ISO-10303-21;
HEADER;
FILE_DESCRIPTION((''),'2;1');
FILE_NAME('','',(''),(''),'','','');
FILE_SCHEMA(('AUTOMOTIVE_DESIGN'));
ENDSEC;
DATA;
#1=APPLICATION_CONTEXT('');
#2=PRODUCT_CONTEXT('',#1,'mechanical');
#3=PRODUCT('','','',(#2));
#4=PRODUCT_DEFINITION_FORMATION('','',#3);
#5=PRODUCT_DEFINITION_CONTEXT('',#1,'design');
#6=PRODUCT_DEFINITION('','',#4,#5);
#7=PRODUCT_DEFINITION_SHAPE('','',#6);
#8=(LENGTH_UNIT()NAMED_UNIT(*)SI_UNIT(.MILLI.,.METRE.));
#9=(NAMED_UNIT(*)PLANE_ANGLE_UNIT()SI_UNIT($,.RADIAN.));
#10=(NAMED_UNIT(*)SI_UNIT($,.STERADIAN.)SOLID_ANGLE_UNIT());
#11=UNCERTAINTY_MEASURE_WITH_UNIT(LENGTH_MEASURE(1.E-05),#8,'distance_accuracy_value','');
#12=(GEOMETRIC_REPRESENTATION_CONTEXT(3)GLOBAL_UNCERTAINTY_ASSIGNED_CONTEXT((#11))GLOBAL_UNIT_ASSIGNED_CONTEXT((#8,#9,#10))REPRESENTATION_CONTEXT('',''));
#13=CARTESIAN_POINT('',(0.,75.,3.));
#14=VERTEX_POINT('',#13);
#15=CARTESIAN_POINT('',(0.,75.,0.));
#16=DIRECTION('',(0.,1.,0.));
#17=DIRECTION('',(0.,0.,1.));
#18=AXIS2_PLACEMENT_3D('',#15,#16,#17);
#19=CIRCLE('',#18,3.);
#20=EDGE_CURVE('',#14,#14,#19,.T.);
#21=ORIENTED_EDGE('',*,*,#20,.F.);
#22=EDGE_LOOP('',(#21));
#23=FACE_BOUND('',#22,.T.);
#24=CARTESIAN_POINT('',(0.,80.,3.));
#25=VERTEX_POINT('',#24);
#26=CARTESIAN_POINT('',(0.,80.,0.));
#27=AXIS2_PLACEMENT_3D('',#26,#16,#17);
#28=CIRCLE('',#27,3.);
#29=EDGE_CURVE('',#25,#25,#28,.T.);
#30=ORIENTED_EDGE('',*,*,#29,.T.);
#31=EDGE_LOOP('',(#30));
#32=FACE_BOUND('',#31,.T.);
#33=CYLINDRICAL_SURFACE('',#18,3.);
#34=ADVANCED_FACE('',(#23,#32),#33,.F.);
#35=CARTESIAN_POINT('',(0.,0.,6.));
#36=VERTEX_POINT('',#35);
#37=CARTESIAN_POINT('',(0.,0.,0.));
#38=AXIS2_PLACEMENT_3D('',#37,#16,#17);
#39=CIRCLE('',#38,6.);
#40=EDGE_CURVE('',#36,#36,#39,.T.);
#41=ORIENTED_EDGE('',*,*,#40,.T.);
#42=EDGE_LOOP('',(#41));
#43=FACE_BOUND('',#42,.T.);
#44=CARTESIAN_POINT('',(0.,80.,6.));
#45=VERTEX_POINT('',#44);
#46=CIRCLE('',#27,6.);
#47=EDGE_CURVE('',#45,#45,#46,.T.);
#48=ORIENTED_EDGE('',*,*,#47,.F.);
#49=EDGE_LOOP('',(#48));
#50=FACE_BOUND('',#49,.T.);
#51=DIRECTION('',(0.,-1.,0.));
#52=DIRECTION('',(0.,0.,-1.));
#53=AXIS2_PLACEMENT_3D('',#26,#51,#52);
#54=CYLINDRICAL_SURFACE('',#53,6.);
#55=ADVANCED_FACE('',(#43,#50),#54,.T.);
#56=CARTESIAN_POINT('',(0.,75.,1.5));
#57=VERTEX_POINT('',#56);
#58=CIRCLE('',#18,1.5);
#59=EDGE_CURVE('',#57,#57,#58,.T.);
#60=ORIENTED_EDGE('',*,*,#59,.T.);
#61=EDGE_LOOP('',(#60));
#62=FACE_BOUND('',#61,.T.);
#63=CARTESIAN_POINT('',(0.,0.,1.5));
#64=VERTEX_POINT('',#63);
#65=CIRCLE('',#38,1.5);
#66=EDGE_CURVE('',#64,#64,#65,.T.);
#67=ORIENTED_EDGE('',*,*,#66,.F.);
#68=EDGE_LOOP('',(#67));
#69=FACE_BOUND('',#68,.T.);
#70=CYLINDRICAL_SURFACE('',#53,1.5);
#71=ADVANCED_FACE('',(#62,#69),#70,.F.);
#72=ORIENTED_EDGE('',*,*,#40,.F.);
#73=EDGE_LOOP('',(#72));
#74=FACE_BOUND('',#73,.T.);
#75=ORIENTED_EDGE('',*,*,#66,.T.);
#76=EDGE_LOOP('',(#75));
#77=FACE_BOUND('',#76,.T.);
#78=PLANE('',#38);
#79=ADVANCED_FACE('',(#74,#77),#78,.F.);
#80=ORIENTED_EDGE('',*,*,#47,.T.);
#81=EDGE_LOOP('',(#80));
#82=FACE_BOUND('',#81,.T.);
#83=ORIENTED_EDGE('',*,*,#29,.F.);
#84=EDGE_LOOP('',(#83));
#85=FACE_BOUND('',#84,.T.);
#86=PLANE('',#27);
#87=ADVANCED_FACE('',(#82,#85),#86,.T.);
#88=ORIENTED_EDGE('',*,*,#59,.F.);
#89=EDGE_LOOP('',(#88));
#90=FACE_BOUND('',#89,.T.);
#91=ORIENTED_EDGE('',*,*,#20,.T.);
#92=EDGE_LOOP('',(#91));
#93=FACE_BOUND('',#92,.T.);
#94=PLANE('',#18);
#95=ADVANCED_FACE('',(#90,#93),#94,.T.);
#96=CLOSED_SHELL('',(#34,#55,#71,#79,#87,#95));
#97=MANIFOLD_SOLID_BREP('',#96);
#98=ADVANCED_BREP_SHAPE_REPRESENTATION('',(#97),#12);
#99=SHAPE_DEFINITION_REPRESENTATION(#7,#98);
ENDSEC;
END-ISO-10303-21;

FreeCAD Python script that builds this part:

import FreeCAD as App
import Part
import Sketcher

doc = App.newDocument("Part")
body = doc.addObject("PartDesign::Body", "Body")

# Sketch on XZ plane
sketch1 = doc.addObject("Sketcher::SketchObject", "Sketch")
body.addObject(sketch1)
sketch1.AttachmentSupport = (doc.XZ_Plane, [""])
sketch1.MapMode = "FlatFace"
sketch1.addGeometry([
    Part.Circle(App.Vector(0, 0, 0), App.Vector(0, 0, 1), 6),
    Part.Circle(App.Vector(0, 0, 0), App.Vector(0, 0, 1), 1.5),
], False)
sketch1.addConstraint([
    Sketcher.Constraint("Coincident", 0, 3, -1, 1),
    Sketcher.Constraint("Coincident", 1, 3, -1, 1),
    Sketcher.Constraint("Diameter", 0, 12.0),
    Sketcher.Constraint("Diameter", 1, 3.0),
])
pad1 = doc.addObject("PartDesign::Pad", "Pad")
body.addObject(pad1)
pad1.Profile = sketch1
pad1.Length = 80
pad1.Reversed = True

# Sketch on XZ plane
sketch2 = doc.addObject("Sketcher::SketchObject", "Sketch001")
body.addObject(sketch2)
sketch2.AttachmentSupport = (doc.XZ_Plane, [""])
sketch2.MapMode = "FlatFace"
sketch2.AttachmentOffset = App.Placement(App.Vector(0, 0, -80), App.Rotation())
sketch2.addGeometry(Part.Circle(App.Vector(0, 0, 0), App.Vector(0, 0, 1), 3), False)
sketch2.addConstraint([
    Sketcher.Constraint("Coincident", 0, 3, -1, 1),
    Sketcher.Constraint("Diameter", 0, 6.0),
])
pocket1 = doc.addObject("PartDesign::Pocket", "Pocket")
body.addObject(pocket1)
pocket1.Profile = sketch2
pocket1.Length = 5
pocket1.Reversed = True

doc.recompute()
